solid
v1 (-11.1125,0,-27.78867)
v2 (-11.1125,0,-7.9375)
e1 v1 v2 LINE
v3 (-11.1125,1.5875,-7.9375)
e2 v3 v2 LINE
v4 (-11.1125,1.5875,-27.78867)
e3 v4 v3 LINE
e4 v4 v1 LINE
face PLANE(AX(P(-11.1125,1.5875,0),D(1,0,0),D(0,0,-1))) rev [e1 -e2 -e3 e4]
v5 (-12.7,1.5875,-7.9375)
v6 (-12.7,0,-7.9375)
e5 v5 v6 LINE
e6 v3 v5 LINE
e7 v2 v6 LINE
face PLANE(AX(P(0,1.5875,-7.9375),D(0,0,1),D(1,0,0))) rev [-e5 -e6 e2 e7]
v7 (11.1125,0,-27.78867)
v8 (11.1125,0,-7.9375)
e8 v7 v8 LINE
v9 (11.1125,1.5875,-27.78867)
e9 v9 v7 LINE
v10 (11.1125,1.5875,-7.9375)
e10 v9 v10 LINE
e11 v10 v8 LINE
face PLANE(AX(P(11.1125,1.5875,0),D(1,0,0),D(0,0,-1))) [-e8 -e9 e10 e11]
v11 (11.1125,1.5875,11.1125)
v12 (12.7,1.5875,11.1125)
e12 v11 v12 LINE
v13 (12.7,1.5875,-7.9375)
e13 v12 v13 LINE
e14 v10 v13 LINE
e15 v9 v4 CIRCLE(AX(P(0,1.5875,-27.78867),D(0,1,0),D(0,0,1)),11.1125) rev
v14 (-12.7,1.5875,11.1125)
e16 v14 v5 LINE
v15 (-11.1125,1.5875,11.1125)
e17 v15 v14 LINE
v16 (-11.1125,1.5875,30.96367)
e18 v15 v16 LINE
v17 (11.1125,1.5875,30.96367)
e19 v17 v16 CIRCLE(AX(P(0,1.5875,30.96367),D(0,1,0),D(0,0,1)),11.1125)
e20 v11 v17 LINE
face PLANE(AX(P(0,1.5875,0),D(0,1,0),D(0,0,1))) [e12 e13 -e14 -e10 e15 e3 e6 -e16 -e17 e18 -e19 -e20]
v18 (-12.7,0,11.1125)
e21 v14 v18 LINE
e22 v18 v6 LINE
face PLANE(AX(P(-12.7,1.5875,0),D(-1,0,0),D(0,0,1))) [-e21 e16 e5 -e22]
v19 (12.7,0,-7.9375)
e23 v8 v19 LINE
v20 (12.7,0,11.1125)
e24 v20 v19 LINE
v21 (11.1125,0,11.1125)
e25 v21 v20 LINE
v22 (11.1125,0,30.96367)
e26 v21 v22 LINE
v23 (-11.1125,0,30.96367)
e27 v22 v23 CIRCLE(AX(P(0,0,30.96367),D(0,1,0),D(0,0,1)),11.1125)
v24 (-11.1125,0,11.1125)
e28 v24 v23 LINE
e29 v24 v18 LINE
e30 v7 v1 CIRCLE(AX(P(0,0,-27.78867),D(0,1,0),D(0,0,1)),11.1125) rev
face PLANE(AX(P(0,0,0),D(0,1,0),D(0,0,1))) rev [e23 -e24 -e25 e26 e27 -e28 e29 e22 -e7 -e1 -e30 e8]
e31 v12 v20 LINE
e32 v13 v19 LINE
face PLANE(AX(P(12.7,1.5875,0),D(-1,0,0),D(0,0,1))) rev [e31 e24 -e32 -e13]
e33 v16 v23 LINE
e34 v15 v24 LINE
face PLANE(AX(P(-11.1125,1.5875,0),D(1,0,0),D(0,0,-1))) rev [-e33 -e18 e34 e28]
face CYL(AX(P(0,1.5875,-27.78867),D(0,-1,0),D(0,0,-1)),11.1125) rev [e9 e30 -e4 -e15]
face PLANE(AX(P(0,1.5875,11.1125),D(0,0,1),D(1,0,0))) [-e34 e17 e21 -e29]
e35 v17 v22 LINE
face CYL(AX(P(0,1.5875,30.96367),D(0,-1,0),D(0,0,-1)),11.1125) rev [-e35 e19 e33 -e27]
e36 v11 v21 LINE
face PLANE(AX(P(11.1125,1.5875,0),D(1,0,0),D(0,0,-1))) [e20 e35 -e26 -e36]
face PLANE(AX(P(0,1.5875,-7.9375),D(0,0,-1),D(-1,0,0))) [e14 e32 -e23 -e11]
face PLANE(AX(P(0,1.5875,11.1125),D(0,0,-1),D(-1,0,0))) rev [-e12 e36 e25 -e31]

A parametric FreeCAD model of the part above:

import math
import FreeCAD as App
import Part
import Sketcher
Q = App.Units.Quantity

doc = App.newDocument("Part")
body = doc.addObject("PartDesign::Body", "Body")

sketch1 = body.newObject("Sketcher::SketchObject", "Sketch")
sketch1.AttachmentSupport = (doc.getObject("XZ_Plane"), [""])
sketch1.MapMode = "FlatFace"
sketch1.addGeometry([
    Part.LineSegment(App.Vector(11.1125, -7.9375, 0), App.Vector(11.1125, -27.78867, 0)),
    Part.ArcOfCircle(Part.Circle(App.Vector(0, -27.78867, 0), App.Vector(0, 0, 1), 11.1125), math.radians(0), math.radians(180)),
    Part.LineSegment(App.Vector(-11.1125, -27.78867, 0), App.Vector(-11.1125, -7.9375, 0)),
    Part.LineSegment(App.Vector(-11.1125, -7.9375, 0), App.Vector(-12.7, -7.9375, 0)),
    Part.LineSegment(App.Vector(-12.7, -7.9375, 0), App.Vector(-12.7, 11.1125, 0)),
    Part.LineSegment(App.Vector(-12.7, 11.1125, 0), App.Vector(-11.1125, 11.1125, 0)),
    Part.LineSegment(App.Vector(-11.1125, 11.1125, 0), App.Vector(-11.1125, 30.96367, 0)),
    Part.ArcOfCircle(Part.Circle(App.Vector(0, 30.96367, 0), App.Vector(0, 0, 1), 11.1125), math.radians(180), math.radians(360)),
    Part.LineSegment(App.Vector(11.1125, 30.96367, 0), App.Vector(11.1125, 11.1125, 0)),
    Part.LineSegment(App.Vector(11.1125, 11.1125, 0), App.Vector(12.7, 11.1125, 0)),
    Part.LineSegment(App.Vector(12.7, 11.1125, 0), App.Vector(12.7, -7.9375, 0)),
    Part.LineSegment(App.Vector(12.7, -7.9375, 0), App.Vector(11.1125, -7.9375, 0)),
], False)
sketch1.addConstraint([
    Sketcher.Constraint("Tangent", 0, 2, 1, 1),
    Sketcher.Constraint("Tangent", 1, 2, 2, 1),
    Sketcher.Constraint("Coincident", 2, 2, 3, 1),
    Sketcher.Constraint("Coincident", 3, 2, 4, 1),
    Sketcher.Constraint("Coincident", 4, 2, 5, 1),
    Sketcher.Constraint("Coincident", 5, 2, 6, 1),
    Sketcher.Constraint("Tangent", 6, 2, 7, 1),
    Sketcher.Constraint("Tangent", 7, 2, 8, 1),
    Sketcher.Constraint("Coincident", 8, 2, 9, 1),
    Sketcher.Constraint("Coincident", 9, 2, 10, 1),
    Sketcher.Constraint("Coincident", 10, 2, 11, 1),
    Sketcher.Constraint("Coincident", 11, 2, 0, 1),
    Sketcher.Constraint("Vertical", 0),
    Sketcher.Constraint("Vertical", 2),
    Sketcher.Constraint("Horizontal", 3),
    Sketcher.Constraint("Vertical", 4),
    Sketcher.Constraint("Horizontal", 5),
    Sketcher.Constraint("Vertical", 6),
    Sketcher.Constraint("Vertical", 8),
    Sketcher.Constraint("Horizontal", 9),
    Sketcher.Constraint("Vertical", 10),
    Sketcher.Constraint("Horizontal", 11),
    Sketcher.Constraint("Equal", 1, 7),
    Sketcher.Constraint("Symmetric", 5, 2, 8, 2, -2),
    Sketcher.Constraint("Symmetric", 3, 2, 10, 2, -2),
    Sketcher.Constraint("PointOnObject", 1, 3, -2),
    Sketcher.Constraint("Equal", 2, 6),
    Sketcher.Constraint("Radius", 1, Q("0.4375 in")),
    Sketcher.Constraint("DistanceX", 4, 2, 9, 2, Q("1 in")),
    Sketcher.Constraint("DistanceY", 4, 1, 4, 2, Q("0.75 in")),
    Sketcher.Constraint("DistanceY", 2, 2, -1, 1, Q("0.3125 in")),
    Sketcher.Constraint("DistanceY", 0, 2, 0, 1, 19.85117),
])
pad1 = body.newObject("PartDesign::Pad", "Pad")
pad1.Profile = sketch1
pad1.Length = Q("0.0625 in")
pad1.Reversed = True

doc.recompute()
